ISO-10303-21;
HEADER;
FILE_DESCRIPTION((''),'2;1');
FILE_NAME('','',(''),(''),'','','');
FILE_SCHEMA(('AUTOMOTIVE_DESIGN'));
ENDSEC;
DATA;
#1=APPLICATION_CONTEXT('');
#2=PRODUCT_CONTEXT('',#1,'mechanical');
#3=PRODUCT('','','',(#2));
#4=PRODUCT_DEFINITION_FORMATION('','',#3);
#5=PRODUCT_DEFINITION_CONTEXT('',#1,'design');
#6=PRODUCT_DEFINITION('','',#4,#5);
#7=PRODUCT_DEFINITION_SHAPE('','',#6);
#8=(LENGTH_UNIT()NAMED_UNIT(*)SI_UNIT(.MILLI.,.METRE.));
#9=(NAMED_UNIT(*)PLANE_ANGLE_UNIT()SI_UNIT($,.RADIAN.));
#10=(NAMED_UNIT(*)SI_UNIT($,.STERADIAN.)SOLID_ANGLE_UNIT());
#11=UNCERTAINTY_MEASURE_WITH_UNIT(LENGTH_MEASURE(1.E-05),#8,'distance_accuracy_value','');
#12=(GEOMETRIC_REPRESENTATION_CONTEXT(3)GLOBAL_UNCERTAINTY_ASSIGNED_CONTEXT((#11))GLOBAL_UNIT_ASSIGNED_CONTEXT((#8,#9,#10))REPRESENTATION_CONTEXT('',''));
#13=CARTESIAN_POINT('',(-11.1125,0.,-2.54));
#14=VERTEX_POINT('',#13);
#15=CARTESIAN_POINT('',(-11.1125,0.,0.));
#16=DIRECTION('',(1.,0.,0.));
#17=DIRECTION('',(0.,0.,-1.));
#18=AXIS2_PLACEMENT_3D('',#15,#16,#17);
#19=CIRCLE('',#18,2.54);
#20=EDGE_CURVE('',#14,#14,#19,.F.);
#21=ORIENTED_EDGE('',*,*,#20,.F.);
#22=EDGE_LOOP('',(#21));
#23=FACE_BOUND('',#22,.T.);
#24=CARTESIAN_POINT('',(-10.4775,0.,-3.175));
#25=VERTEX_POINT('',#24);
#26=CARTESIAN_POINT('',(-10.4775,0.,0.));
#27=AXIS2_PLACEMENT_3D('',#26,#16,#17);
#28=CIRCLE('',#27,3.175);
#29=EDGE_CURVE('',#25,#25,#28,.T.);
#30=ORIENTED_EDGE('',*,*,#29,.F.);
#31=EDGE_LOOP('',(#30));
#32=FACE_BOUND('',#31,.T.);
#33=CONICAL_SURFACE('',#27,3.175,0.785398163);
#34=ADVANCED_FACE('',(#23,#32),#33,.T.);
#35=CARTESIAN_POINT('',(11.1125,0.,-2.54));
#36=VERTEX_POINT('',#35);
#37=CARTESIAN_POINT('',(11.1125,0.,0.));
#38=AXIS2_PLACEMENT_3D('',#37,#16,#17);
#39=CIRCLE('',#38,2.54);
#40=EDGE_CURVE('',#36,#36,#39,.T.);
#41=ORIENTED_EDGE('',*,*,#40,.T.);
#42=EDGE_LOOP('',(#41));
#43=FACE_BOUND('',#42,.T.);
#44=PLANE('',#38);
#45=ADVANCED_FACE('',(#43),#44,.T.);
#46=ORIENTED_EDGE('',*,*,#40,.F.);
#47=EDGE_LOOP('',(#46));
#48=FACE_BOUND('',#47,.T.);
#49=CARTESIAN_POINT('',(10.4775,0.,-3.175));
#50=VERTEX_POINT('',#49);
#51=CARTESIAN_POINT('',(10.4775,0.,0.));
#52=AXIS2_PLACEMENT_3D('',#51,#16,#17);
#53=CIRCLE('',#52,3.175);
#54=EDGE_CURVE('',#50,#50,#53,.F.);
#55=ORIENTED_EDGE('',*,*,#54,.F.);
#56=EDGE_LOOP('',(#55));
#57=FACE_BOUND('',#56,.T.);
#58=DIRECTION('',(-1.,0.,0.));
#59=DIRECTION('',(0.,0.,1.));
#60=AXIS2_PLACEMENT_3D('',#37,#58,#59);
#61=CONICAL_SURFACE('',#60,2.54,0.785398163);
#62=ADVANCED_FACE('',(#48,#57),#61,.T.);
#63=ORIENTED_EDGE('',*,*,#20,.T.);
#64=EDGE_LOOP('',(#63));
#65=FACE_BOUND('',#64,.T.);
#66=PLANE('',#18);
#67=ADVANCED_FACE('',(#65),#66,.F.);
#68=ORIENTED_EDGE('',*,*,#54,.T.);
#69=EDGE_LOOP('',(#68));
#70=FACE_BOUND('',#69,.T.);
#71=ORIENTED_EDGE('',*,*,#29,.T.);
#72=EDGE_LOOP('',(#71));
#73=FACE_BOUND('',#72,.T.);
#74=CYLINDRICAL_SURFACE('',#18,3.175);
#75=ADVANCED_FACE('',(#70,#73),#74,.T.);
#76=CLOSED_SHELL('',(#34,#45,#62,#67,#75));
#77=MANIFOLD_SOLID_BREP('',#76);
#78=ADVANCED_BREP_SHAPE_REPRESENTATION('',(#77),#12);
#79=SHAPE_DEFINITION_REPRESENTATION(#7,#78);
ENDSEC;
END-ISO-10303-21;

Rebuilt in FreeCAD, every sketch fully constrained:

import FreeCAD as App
import Part
import Sketcher
from FreeCAD import Vector
Q = App.Units.Quantity


def edges_at(feature, points):
    """Names of the edges that pass closest to the given points."""
    edges = feature.Shape.Edges
    near = lambda p: min(range(len(edges)), key=lambda i: edges[i].distToShape(Part.Vertex(*p))[0])
    return sorted({f"Edge{near(p) + 1}" for p in points})

doc = App.newDocument("Part")
body = doc.addObject("PartDesign::Body", "Body")

# Sketch on YZ plane
sketch1 = body.newObject("Sketcher::SketchObject", "Sketch")
sketch1.AttachmentSupport = (doc.getObject("YZ_Plane"), [""])
sketch1.MapMode = "FlatFace"
sketch1.addGeometry(Part.Circle(Vector(0, 0, 0), Vector(0, 0, 1), 3.2), False)
sketch1.addConstraint([
    Sketcher.Constraint("Coincident", 0, 3, -1, 1),
    Sketcher.Constraint("Diameter", 0, Q("0.25 in")),
])
pad1 = body.newObject("PartDesign::Pad", "Pad")
pad1.Profile = sketch1
pad1.Type = "TwoLengths"
pad1.Length = Q("0.4375 in")
pad1.Length2 = Q("0.4375 in")
doc.recompute()

chamfer = body.newObject("PartDesign::Chamfer", "Chamfer")
chamfer.Base = (pad1, edges_at(pad1, [(-11.113, 0, 3.175), (11.113, 0, 3.175)]))
chamfer.Size = Q("0.025 in")

doc.recompute()
